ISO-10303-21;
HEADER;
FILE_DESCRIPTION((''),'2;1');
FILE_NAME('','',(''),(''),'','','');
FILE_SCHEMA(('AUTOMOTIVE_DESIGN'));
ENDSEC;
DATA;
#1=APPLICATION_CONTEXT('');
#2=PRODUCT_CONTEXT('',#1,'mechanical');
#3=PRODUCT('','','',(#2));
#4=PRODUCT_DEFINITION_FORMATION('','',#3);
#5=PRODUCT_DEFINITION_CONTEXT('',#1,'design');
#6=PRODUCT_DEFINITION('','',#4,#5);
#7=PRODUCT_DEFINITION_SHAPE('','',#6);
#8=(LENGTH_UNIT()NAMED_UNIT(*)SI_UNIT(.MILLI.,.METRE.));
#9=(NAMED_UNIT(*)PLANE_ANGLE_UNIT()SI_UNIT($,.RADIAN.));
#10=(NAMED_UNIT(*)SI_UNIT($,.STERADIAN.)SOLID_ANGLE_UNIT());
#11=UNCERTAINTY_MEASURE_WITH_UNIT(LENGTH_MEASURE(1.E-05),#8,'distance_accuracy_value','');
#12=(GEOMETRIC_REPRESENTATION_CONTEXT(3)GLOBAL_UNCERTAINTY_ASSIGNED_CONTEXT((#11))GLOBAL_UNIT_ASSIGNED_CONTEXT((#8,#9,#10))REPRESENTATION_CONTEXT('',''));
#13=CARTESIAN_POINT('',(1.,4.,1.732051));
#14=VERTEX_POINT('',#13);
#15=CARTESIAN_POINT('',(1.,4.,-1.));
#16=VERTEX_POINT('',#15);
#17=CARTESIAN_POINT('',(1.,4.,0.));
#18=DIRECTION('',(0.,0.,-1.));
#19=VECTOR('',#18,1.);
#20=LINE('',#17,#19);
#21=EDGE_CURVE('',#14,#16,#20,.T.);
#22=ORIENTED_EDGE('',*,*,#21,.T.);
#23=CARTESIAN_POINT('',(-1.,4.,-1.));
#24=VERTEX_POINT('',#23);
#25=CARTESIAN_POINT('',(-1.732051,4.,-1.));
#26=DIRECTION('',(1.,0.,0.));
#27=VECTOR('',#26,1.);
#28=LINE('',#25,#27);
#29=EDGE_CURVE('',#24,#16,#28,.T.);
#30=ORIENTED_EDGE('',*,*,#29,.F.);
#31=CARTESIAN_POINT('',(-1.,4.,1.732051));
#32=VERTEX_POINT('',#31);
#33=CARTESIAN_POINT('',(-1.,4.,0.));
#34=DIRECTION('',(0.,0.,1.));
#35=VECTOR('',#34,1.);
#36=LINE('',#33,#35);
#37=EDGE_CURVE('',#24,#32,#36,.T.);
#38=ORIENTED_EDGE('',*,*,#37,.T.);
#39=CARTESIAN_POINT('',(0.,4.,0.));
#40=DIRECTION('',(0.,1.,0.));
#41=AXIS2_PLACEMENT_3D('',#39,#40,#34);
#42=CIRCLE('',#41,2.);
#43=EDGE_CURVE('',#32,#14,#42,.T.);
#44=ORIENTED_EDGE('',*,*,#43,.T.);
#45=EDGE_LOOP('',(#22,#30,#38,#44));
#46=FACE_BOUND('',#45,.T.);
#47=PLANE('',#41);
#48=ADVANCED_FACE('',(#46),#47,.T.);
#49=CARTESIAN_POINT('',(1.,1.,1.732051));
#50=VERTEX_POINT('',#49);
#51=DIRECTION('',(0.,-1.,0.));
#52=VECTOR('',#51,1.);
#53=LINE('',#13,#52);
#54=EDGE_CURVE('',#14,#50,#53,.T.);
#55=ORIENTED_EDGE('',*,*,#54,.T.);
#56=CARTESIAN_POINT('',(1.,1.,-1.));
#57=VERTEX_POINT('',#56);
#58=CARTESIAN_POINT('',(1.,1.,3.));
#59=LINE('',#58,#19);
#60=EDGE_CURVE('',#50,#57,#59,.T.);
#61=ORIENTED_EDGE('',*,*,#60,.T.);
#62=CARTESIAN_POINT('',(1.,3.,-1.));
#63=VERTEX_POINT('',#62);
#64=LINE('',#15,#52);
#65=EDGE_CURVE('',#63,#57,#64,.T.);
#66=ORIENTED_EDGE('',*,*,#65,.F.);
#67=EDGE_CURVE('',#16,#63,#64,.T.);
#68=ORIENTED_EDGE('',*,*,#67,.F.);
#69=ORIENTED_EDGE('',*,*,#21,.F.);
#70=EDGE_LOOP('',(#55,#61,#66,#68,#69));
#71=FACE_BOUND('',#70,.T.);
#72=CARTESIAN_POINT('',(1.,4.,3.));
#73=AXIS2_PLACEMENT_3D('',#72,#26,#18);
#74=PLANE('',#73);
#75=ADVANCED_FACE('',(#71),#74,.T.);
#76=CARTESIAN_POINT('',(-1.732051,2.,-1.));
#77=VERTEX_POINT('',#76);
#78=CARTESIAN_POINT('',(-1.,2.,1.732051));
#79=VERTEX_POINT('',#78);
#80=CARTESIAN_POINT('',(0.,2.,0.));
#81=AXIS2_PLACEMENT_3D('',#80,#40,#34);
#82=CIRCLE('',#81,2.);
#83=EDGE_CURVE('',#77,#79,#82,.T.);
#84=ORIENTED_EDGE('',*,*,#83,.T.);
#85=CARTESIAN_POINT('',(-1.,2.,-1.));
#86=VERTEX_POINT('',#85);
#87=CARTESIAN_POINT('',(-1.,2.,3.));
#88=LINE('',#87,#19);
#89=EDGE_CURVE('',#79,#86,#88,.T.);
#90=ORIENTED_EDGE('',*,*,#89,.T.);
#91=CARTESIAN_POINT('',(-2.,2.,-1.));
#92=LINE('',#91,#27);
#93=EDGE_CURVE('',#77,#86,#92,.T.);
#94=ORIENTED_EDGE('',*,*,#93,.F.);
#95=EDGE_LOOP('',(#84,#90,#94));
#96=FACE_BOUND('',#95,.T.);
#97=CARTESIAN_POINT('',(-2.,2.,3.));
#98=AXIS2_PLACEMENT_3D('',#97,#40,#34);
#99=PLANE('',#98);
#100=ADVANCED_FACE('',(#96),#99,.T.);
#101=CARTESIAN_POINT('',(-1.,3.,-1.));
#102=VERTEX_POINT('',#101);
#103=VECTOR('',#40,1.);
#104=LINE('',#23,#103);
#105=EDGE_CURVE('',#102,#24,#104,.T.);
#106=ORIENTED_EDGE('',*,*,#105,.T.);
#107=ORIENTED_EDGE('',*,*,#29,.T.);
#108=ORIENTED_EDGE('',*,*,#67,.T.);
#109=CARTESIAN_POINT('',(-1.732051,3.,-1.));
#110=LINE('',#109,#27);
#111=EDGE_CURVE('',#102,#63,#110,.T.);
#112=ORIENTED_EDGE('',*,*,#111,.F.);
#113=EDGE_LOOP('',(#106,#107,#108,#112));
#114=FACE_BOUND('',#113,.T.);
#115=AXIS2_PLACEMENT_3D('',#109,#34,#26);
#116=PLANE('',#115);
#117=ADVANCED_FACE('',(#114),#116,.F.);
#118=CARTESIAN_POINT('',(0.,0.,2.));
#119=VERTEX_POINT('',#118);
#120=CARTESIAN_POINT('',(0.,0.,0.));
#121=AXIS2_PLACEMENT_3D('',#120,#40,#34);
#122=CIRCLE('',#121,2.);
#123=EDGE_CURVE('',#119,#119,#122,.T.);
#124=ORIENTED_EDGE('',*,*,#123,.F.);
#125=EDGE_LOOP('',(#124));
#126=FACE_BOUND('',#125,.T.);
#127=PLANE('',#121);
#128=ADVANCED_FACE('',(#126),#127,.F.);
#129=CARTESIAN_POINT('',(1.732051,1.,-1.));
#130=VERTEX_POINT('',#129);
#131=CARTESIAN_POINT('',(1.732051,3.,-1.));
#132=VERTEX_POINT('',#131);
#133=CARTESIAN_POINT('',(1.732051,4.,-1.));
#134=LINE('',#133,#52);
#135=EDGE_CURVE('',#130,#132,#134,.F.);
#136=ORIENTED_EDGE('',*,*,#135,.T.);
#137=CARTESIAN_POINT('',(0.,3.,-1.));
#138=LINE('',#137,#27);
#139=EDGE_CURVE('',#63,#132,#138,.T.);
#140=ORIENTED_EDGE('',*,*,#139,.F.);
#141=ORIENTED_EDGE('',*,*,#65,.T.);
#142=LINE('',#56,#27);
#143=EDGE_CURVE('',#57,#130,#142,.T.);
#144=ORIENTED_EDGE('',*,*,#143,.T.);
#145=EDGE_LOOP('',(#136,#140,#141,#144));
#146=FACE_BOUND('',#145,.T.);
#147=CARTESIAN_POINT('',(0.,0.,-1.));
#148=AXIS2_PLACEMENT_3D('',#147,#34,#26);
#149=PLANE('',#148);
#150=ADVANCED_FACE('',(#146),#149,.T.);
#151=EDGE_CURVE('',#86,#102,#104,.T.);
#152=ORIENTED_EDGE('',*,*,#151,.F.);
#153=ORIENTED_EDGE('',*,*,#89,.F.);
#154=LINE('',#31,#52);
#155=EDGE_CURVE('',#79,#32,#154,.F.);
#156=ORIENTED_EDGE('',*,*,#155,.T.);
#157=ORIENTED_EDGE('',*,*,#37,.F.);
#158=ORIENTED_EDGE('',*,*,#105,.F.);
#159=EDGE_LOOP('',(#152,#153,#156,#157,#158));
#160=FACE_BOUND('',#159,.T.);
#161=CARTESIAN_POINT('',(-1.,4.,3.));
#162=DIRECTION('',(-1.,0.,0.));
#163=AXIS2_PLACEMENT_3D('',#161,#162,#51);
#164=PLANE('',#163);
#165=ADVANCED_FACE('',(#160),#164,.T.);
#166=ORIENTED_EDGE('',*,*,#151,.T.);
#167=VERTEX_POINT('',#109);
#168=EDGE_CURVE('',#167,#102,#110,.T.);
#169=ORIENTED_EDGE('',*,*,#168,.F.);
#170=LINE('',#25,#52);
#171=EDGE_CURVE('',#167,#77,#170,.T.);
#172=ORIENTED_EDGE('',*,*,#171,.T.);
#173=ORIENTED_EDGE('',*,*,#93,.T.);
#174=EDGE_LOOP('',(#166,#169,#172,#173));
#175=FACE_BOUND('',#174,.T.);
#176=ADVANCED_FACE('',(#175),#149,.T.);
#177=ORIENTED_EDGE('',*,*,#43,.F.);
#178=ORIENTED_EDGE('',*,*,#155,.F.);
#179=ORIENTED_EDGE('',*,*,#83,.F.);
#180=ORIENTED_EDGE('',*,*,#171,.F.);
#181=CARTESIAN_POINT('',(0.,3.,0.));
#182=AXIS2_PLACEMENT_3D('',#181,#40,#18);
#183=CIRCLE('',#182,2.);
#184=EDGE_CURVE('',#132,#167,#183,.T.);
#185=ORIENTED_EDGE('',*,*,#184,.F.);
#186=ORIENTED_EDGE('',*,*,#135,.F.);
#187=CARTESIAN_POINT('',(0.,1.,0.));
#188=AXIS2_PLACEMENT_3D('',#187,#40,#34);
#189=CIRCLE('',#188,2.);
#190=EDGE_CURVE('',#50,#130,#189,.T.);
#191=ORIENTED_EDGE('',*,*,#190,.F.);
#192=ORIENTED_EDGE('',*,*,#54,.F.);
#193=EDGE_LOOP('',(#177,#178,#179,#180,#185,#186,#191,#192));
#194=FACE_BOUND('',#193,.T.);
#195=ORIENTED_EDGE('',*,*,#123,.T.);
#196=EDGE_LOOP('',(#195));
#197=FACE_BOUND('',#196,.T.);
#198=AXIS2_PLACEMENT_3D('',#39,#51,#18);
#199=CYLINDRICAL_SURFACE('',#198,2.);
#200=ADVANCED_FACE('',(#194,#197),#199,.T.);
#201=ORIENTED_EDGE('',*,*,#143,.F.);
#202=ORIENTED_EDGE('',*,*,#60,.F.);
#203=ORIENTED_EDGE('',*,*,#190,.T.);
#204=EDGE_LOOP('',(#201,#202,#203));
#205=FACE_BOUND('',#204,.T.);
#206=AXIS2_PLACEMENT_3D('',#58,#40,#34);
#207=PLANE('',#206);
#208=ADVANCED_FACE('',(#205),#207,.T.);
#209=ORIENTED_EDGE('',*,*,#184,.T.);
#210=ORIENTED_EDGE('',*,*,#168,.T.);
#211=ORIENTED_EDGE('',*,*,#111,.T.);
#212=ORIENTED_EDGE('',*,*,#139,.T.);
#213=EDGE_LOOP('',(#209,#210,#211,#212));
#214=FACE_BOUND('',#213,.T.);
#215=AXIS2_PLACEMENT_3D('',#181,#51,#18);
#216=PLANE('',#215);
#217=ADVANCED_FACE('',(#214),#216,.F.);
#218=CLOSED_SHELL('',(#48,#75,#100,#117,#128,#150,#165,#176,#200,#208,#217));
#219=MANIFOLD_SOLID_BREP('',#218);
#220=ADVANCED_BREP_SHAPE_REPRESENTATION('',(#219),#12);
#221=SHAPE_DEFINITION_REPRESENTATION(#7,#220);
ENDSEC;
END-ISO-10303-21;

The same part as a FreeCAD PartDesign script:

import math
import FreeCAD as App
import Part
import Sketcher

doc = App.newDocument("Part")
body = doc.addObject("PartDesign::Body", "Body")

sketch1 = doc.addObject("Sketcher::SketchObject", "Sketch")
body.addObject(sketch1)
sketch1.AttachmentSupport = (doc.XZ_Plane, [""])
sketch1.MapMode = "FlatFace"
sketch1.addGeometry(Part.Circle(App.Vector(0, 0, 0), App.Vector(0, 0, 1), 2), False)
sketch1.addConstraint(Sketcher.Constraint("Coincident", 0, 3, -1, 1))
sketch1.addConstraint(Sketcher.Constraint("Diameter", 0, 4.0))
pad1 = doc.addObject("PartDesign::Pad", "Pad")
body.addObject(pad1)
pad1.Profile = sketch1
pad1.Length = 4
pad1.Reversed = True

sketch2 = doc.addObject("Sketcher::SketchObject", "Sketch001")
body.addObject(sketch2)
sketch2.AttachmentSupport = (doc.XY_Plane, [""])
sketch2.MapMode = "FlatFace"
sketch2.addGeometry(Part.LineSegment(App.Vector(1, 4, 0), App.Vector(1, 1, 0)), False)
sketch2.addGeometry(Part.LineSegment(App.Vector(1, 1, 0), App.Vector(2, 1, 0)), False)
sketch2.addGeometry(Part.LineSegment(App.Vector(2, 1, 0), App.Vector(2, 4, 0)), False)
sketch2.addGeometry(Part.LineSegment(App.Vector(2, 4, 0), App.Vector(1, 4, 0)), False)
sketch2.addGeometry(Part.LineSegment(App.Vector(-2, 4, 0), App.Vector(-2, 2, 0)), False)
sketch2.addGeometry(Part.LineSegment(App.Vector(-2, 2, 0), App.Vector(-1, 2, 0)), False)
sketch2.addGeometry(Part.LineSegment(App.Vector(-1, 2, 0), App.Vector(-1, 4, 0)), False)
sketch2.addGeometry(Part.LineSegment(App.Vector(-1, 4, 0), App.Vector(-2, 4, 0)), False)
sketch2.addConstraint(Sketcher.Constraint("Coincident", 0, 2, 1, 1))
sketch2.addConstraint(Sketcher.Constraint("Coincident", 1, 2, 2, 1))
sketch2.addConstraint(Sketcher.Constraint("Coincident", 2, 2, 3, 1))
sketch2.addConstraint(Sketcher.Constraint("Coincident", 3, 2, 0, 1))
sketch2.addConstraint(Sketcher.Constraint("Coincident", 4, 2, 5, 1))
sketch2.addConstraint(Sketcher.Constraint("Coincident", 5, 2, 6, 1))
sketch2.addConstraint(Sketcher.Constraint("Coincident", 6, 2, 7, 1))
sketch2.addConstraint(Sketcher.Constraint("Coincident", 7, 2, 4, 1))
sketch2.addConstraint(Sketcher.Constraint("Vertical", 0))
sketch2.addConstraint(Sketcher.Constraint("Horizontal", 1))
sketch2.addConstraint(Sketcher.Constraint("Vertical", 2))
sketch2.addConstraint(Sketcher.Constraint("Horizontal", 3))
sketch2.addConstraint(Sketcher.Constraint("Vertical", 4))
sketch2.addConstraint(Sketcher.Constraint("Horizontal", 5))
sketch2.addConstraint(Sketcher.Constraint("Vertical", 6))
sketch2.addConstraint(Sketcher.Constraint("Horizontal", 7))
sketch2.addConstraint(Sketcher.Constraint("Symmetric", 3, 2, 6, 2, -2))
sketch2.addConstraint(Sketcher.Constraint("Equal", 3, 5))
sketch2.addConstraint(Sketcher.Constraint("DistanceX", 1, 1, 1, 2, 1.0))
sketch2.addConstraint(Sketcher.Constraint("DistanceY", 0, 2, 0, 1, 3.0))
sketch2.addConstraint(Sketcher.Constraint("DistanceY", 4, 2, 4, 1, 2.0))
sketch2.addConstraint(Sketcher.Constraint("DistanceX", -1, 1, 0, 2, 1.0))
sketch2.addConstraint(Sketcher.Constraint("DistanceY", -1, 1, 0, 2, 1.0))
pocket1 = doc.addObject("PartDesign::Pocket", "Pocket")
body.addObject(pocket1)
pocket1.Profile = sketch2
pocket1.Type = "TwoLengths"
pocket1.Length = 3
pocket1.Length2 = 1
pocket1.Reversed = True

sketch3 = doc.addObject("Sketcher::SketchObject", "Sketch002")
body.addObject(sketch3)
sketch3.AttachmentSupport = (doc.XZ_Plane, [""])
sketch3.MapMode = "FlatFace"
sketch3.AttachmentOffset = App.Placement(App.Vector(0, 0, -4), App.Rotation())
sketch3.addGeometry(Part.LineSegment(App.Vector(-1.7, -1, 0), App.Vector(1.7, -1, 0)), False)
sketch3.addGeometry(Part.ArcOfCircle(Part.Circle(App.Vector(0, 0, 0), App.Vector(0, 0, 1), 2), math.radians(-150), math.radians(-30)), False)
sketch3.addConstraint(Sketcher.Constraint("Coincident", 0, 1, 1, 1))
sketch3.addConstraint(Sketcher.Constraint("Coincident", 1, 2, 0, 2))
sketch3.addConstraint(Sketcher.Constraint("Horizontal", 0))
sketch3.addConstraint(Sketcher.Constraint("Coincident", 1, 3, -1, 1))
sketch3.addConstraint(Sketcher.Constraint("Radius", 1, 2.0))
sketch3.addConstraint(Sketcher.Constraint("DistanceY", 0, 1, -1, 1, 1.0))
pocket2 = doc.addObject("PartDesign::Pocket", "Pocket001")
body.addObject(pocket2)
pocket2.Profile = sketch3
pocket2.Length = 1
pocket2.Reversed = True

doc.recompute()
